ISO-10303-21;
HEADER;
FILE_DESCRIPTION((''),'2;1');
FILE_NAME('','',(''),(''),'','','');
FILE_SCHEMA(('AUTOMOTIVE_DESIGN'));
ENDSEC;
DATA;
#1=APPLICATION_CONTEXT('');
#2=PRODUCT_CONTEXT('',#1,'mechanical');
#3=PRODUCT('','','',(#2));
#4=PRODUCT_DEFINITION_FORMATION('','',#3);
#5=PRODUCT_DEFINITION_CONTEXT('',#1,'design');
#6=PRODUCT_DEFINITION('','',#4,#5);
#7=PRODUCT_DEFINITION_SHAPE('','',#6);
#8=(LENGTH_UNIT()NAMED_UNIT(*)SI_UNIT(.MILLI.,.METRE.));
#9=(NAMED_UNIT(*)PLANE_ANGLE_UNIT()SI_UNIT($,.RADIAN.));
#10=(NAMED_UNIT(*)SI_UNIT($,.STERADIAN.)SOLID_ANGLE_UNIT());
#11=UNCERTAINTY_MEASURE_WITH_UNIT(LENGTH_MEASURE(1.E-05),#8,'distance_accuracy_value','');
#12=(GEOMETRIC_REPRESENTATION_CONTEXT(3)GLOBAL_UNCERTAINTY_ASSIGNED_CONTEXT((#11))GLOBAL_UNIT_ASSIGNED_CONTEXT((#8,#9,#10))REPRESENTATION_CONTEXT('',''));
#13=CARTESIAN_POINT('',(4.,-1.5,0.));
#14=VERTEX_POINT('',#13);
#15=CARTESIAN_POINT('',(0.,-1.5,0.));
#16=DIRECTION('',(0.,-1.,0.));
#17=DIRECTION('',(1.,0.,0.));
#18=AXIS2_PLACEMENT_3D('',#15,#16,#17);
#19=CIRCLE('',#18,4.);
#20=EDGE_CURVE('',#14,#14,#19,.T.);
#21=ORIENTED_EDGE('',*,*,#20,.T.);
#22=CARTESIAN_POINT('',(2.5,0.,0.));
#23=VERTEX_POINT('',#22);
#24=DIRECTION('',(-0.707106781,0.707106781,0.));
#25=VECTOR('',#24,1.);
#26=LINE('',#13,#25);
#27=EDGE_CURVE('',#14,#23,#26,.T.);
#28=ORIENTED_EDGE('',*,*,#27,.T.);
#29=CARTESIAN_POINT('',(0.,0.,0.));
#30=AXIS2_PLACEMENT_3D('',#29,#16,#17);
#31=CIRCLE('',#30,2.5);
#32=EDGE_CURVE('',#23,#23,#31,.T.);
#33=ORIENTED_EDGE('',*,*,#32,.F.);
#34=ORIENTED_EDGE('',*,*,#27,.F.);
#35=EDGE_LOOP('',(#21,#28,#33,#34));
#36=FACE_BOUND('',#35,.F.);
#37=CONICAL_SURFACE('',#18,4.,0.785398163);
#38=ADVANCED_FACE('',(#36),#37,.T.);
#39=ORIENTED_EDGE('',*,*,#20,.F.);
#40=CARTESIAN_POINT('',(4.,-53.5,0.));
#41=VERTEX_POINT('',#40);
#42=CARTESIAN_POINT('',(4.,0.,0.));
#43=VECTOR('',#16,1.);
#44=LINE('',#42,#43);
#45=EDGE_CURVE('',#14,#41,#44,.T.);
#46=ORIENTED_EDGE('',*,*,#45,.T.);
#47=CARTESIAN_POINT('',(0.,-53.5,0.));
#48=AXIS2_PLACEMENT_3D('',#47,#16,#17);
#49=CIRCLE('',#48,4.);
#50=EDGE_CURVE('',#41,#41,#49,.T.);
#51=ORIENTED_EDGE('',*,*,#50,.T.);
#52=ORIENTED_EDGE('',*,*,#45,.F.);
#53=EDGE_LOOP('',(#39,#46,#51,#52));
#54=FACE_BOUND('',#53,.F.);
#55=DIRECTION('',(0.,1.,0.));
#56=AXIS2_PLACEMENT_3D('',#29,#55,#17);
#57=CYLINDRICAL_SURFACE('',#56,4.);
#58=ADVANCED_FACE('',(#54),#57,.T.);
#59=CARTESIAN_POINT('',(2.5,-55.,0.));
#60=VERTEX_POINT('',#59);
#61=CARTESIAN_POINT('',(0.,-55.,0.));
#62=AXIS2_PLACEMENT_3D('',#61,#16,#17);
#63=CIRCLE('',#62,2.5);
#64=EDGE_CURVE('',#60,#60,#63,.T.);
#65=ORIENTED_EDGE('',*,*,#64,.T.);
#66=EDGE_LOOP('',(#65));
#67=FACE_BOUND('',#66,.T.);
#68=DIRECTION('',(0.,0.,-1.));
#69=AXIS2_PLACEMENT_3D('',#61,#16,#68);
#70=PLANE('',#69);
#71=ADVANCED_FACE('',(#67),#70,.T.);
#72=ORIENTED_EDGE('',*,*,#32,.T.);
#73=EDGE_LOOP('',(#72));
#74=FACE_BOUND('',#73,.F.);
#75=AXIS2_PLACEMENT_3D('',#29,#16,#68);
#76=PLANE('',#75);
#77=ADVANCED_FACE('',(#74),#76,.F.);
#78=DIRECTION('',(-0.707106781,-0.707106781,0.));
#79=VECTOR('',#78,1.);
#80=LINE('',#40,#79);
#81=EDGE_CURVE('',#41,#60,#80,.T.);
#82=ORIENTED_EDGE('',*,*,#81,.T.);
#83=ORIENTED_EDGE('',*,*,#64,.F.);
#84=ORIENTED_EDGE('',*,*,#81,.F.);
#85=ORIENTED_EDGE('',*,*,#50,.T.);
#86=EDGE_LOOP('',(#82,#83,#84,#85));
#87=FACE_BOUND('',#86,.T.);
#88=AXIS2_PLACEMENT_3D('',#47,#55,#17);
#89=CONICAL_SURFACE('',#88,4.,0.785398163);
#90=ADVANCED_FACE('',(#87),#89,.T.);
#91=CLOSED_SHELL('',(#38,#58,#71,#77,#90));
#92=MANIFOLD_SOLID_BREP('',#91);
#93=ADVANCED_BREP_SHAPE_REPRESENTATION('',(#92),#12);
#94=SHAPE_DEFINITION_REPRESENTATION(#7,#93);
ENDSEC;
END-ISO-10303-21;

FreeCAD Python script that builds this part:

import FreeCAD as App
import Part
import Sketcher

V = App.Vector


def edges_at(feature, points):
    """Names of the edges that pass closest to the given points."""
    edges = feature.Shape.Edges
    near = lambda p: min(range(len(edges)), key=lambda i: edges[i].distToShape(Part.Vertex(*p))[0])
    return sorted({f"Edge{near(p) + 1}" for p in points})

doc = App.newDocument("Part")
params = doc.addObject("Spreadsheet::Sheet", "Params")
for row, (alias, value) in enumerate([
    ("sketch1_diameter", "8 mm"),
    ("pad1_length", "55 mm"),
    ("chamfer_size", "1.5 mm"),
], start=1):
    params.set(f"A{row}", alias)
    params.set(f"B{row}", "=" + value)
    params.setAlias(f"B{row}", alias)

body = doc.addObject("PartDesign::Body", "Body")

# Sketch on XZ plane
sketch1 = body.newObject("Sketcher::SketchObject", "Sketch")
sketch1.AttachmentSupport = (doc.getObject("XZ_Plane"), [""])
sketch1.MapMode = "FlatFace"
sketch1.addGeometry(Part.Circle(V(0, 0, 0), V(0, 0, 1), 4), False)
sketch1.addConstraint(Sketcher.Constraint("Coincident", 0, 3, -1, 1))
sketch1.addConstraint(Sketcher.Constraint("Diameter", 0, 8.0))
sketch1.setExpression("Constraints[1]", "Params.sketch1_diameter")
pad1 = body.newObject("PartDesign::Pad", "Pad")
pad1.Profile = sketch1
pad1.setExpression("Length", "Params.pad1_length")
doc.recompute()

chamfer = body.newObject("PartDesign::Chamfer", "Chamfer")
chamfer.Base = (pad1, edges_at(pad1, [(-4, -55, 0), (-4, 0, 0)]))
chamfer.setExpression("Size", "Params.chamfer_size")

doc.recompute()
